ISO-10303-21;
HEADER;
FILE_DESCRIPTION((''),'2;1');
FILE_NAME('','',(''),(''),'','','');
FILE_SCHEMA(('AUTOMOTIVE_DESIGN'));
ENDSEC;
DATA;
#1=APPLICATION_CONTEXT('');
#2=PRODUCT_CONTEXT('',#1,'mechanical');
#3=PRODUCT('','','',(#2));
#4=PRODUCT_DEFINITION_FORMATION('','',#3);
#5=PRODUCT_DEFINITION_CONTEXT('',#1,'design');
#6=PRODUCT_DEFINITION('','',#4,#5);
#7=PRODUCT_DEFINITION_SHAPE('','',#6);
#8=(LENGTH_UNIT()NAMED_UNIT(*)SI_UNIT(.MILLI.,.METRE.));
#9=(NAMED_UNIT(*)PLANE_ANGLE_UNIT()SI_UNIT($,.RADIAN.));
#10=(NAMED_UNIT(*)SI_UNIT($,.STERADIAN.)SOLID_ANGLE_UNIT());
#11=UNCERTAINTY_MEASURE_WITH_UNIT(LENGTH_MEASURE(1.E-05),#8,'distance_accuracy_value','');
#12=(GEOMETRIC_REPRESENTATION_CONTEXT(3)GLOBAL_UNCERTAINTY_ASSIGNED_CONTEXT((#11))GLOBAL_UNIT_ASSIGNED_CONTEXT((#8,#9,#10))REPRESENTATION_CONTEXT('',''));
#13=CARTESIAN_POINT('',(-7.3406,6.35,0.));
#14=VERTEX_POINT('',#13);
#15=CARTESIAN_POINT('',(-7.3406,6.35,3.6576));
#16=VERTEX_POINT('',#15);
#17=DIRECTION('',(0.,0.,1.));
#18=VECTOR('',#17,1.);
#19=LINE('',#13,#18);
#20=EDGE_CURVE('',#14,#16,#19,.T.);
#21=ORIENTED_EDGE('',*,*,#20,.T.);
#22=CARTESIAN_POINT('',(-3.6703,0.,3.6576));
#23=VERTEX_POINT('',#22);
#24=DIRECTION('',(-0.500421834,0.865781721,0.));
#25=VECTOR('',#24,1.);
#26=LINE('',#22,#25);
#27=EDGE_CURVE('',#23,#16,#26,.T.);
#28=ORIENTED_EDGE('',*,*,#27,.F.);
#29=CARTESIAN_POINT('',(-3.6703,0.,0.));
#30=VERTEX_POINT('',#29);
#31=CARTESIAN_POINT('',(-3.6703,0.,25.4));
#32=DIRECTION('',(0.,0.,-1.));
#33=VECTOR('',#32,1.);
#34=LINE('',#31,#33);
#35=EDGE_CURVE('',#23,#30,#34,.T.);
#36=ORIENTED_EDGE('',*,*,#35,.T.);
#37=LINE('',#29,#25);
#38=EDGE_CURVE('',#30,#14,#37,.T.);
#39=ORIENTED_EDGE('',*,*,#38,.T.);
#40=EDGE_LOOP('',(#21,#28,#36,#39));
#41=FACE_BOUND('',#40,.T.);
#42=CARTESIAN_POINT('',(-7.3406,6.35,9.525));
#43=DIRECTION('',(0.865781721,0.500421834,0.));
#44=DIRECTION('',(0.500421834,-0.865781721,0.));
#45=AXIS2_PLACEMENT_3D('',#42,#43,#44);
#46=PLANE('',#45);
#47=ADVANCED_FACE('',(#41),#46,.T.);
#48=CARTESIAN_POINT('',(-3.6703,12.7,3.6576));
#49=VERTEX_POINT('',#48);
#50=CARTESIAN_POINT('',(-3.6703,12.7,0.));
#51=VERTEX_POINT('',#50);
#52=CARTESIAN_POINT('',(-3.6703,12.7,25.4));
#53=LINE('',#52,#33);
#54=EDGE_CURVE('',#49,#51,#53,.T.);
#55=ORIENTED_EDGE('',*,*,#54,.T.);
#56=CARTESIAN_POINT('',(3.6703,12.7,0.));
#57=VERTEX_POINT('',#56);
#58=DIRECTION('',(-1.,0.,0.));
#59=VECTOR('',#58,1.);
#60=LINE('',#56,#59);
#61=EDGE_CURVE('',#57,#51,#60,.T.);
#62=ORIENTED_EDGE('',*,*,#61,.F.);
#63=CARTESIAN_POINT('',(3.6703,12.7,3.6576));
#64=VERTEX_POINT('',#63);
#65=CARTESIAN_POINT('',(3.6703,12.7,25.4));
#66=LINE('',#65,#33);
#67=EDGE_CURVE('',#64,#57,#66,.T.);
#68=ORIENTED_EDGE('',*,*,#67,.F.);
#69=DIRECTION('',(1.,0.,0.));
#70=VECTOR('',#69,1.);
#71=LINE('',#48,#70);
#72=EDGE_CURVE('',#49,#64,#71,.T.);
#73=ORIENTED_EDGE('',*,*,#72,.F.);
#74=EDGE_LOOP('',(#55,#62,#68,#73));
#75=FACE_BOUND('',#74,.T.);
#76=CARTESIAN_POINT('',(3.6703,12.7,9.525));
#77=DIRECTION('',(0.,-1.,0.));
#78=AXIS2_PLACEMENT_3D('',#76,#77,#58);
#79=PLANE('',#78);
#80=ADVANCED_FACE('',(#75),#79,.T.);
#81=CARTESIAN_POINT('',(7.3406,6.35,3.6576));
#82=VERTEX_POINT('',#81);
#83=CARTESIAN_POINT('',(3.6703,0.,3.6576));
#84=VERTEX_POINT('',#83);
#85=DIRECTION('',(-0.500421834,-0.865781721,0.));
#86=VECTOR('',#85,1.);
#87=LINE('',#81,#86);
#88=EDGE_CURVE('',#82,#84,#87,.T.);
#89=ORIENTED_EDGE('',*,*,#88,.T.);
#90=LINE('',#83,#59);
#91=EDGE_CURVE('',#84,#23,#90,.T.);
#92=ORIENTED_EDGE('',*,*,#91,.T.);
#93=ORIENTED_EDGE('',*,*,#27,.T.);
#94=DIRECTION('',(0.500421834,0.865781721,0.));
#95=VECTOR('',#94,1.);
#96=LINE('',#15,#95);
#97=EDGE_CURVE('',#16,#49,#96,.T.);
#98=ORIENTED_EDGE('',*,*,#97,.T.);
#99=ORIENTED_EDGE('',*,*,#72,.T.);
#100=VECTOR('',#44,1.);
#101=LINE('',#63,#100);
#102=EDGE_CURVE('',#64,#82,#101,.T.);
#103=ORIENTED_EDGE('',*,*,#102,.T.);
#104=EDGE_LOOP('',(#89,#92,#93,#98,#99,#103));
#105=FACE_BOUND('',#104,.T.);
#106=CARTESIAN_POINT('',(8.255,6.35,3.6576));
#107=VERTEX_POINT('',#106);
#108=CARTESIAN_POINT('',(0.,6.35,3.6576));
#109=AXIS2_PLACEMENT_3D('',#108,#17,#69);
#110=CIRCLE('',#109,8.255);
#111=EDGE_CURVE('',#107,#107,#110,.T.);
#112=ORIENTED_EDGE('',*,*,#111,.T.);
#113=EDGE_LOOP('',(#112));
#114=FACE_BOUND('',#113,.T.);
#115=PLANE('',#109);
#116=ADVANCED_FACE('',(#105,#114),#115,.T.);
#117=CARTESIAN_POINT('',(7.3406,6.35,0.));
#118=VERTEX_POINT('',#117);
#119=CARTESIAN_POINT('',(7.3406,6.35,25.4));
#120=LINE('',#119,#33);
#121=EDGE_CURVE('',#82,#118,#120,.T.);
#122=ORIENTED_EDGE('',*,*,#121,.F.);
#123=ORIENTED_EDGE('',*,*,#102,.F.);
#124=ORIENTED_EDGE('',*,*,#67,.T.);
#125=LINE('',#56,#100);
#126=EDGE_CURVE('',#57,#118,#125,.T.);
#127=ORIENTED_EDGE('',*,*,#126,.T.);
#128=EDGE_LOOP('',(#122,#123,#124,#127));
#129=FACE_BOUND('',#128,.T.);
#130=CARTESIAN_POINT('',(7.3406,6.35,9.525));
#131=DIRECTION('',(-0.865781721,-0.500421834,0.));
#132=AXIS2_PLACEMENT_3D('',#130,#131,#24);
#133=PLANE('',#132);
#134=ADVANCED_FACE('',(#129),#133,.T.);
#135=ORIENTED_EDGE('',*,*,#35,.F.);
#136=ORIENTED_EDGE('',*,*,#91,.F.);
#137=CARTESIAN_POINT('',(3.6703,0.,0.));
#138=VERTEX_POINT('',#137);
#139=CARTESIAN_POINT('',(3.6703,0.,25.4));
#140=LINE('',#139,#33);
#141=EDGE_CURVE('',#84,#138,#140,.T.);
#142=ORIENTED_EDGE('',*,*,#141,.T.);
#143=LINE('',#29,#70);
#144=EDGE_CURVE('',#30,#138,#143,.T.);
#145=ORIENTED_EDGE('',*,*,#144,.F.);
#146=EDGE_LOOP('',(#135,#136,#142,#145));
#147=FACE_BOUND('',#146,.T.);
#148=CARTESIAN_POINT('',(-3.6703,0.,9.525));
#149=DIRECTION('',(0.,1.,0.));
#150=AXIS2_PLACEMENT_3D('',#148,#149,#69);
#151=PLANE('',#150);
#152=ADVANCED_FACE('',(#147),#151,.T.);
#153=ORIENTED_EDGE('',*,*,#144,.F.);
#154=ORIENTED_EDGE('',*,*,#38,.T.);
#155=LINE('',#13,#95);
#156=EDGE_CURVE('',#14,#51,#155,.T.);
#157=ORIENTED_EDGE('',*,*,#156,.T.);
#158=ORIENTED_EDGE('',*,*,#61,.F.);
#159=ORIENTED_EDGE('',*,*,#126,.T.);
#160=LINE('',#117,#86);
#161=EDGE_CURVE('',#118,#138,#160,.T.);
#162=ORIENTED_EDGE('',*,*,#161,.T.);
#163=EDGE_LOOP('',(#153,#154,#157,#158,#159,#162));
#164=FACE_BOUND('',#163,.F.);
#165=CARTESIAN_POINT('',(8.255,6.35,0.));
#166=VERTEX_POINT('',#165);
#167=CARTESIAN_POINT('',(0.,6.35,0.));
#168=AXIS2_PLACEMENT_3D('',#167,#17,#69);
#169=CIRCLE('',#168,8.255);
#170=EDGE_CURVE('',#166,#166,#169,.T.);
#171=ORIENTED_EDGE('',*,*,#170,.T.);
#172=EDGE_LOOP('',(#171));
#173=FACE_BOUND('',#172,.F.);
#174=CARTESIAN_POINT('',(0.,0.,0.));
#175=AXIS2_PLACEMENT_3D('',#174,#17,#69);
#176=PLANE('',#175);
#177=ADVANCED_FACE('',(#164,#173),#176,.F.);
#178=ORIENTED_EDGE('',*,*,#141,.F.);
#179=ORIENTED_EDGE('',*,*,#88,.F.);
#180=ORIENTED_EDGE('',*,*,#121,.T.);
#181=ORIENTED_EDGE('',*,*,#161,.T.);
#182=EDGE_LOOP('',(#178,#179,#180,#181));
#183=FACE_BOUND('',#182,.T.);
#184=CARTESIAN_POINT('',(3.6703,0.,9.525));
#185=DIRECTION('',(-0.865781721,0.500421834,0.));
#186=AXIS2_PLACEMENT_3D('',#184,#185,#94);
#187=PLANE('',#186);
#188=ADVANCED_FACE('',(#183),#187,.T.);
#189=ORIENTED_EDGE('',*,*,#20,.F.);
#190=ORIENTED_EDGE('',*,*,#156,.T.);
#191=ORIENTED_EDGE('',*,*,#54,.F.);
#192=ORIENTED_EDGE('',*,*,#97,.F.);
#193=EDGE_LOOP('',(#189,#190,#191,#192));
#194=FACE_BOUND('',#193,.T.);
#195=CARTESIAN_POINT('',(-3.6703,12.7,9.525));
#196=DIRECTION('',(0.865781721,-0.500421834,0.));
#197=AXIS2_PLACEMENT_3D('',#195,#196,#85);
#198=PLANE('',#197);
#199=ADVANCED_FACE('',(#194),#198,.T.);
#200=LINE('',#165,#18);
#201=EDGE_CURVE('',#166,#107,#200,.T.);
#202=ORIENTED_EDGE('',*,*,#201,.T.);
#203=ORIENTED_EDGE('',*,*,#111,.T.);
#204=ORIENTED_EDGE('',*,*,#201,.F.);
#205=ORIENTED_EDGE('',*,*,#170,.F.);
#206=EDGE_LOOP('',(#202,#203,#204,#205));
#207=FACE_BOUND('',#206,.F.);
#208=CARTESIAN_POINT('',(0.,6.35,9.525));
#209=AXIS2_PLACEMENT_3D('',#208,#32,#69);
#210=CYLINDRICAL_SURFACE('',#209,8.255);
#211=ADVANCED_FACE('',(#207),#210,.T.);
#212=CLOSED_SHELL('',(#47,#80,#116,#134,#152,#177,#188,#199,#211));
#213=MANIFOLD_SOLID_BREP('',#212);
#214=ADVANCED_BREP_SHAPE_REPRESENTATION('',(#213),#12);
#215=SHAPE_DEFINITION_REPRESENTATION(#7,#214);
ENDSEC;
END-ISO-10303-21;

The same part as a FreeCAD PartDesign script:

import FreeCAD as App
import Part
import Sketcher

V = App.Vector
Q = App.Units.Quantity


def add_polygon(sketch, points):
    """Adds a closed chain of lines whose ends are joined by coincident constraints."""
    first, n = sketch.GeometryCount, len(points)
    for a, b in zip(points, points[1:] + points[:1]):
        sketch.addGeometry(Part.LineSegment(App.Vector(*a, 0), App.Vector(*b, 0)), False)
    for i in range(n):
        sketch.addConstraint(Sketcher.Constraint("Coincident", first + i, 2, first + (i + 1) % n, 1))

doc = App.newDocument("Part")
body = doc.addObject("PartDesign::Body", "Body")

# Sketch on XY plane
sketch1 = body.newObject("Sketcher::SketchObject", "Sketch")
sketch1.AttachmentSupport = (doc.getObject("XY_Plane"), [""])
sketch1.MapMode = "FlatFace"
sketch1.addGeometry(Part.Circle(V(0, 6, 0), V(0, 0, 1), 8), False)  # 0
add_polygon(sketch1, [(-4, 13), (4, 13), (7, 6), (4, 0), (-4, 0), (-7, 6)])  # lines 1-6
sketch1.addConstraint([
    Sketcher.Constraint("Horizontal", 1),
    Sketcher.Constraint("Horizontal", 4),
    Sketcher.Constraint("Symmetric", 3, 2, 4, 2, -1, 1),
    Sketcher.Constraint("Symmetric", 2, 2, 5, 2, -2),
    Sketcher.Constraint("PointOnObject", 0, 3, -2),
    Sketcher.Constraint("Parallel", 2, 5),
    Sketcher.Constraint("Parallel", 3, 6),
    Sketcher.Constraint("Horizontal", 0, 3, 2, 2),
    Sketcher.Constraint("Vertical", 1, 2, 3, 2),
    Sketcher.Constraint("Diameter", 0, Q("0.65 in")),
    Sketcher.Constraint("DistanceY", -1, 1, 0, 3, Q("0.25 in")),
    Sketcher.Constraint("DistanceX", 1, 1, 1, 2, Q("0.289 in")),
    Sketcher.Constraint("DistanceX", -1, 1, 2, 2, Q("0.289 in")),
])
pad1 = body.newObject("PartDesign::Pad", "Pad")
pad1.Profile = sketch1
pad1.Length = Q("0.245 in")

# Sketch on XY plane
sketch2 = body.newObject("Sketcher::SketchObject", "Sketch001")
sketch2.AttachmentSupport = (doc.getObject("XY_Plane"), [""])
sketch2.MapMode = "FlatFace"
sketch2.AttachmentOffset = App.Placement(V(0, 0, 0.245 * 25.4), App.Rotation())
sketch2.addGeometry(Part.Circle(V(0, 6, 0), V(0, 0, 1), 8), False)  # 0
add_polygon(sketch2, [(4, 0), (-4, 0), (-7, 6), (-4, 13), (4, 13), (7, 6)])  # lines 1-6
sketch2.addConstraint([
    Sketcher.Constraint("Horizontal", 1),
    Sketcher.Constraint("Horizontal", 4),
    Sketcher.Constraint("Symmetric", 1, 2, 6, 2, -1, 1),
    Sketcher.Constraint("Symmetric", 2, 2, 5, 2, -2),
    Sketcher.Constraint("PointOnObject", 0, 3, -2),
    Sketcher.Constraint("Parallel", 2, 5),
    Sketcher.Constraint("Parallel", 3, 6),
    Sketcher.Constraint("Horizontal", 0, 3, 2, 2),
    Sketcher.Constraint("Vertical", 1, 2, 3, 2),
    Sketcher.Constraint("Diameter", 0, Q("0.65 in")),
    Sketcher.Constraint("DistanceY", -1, 1, 3, 2, Q("0.5 in")),
    Sketcher.Constraint("DistanceX", 1, 2, 1, 1, Q("0.289 in")),
    Sketcher.Constraint("DistanceX", 2, 2, -1, 1, Q("0.289 in")),
])
pad2 = body.newObject("PartDesign::Pad", "Pad001")
pad2.Profile = sketch2
pad2.Length = Q("0.13 in")

# Sketch on XY plane
sketch3 = body.newObject("Sketcher::SketchObject", "Sketch002")
sketch3.AttachmentSupport = (doc.getObject("XY_Plane"), [""])
sketch3.MapMode = "FlatFace"
sketch3.AttachmentOffset = App.Placement(V(0, 0, 0.375 * 25.4), App.Rotation())
sketch3.addGeometry(Part.Circle(V(0, 6, 0), V(0, 0, 1), 8), False)  # 0
add_polygon(sketch3, [(-4, 0), (-7, 6), (-4, 13), (4, 13), (7, 6), (4, 0)])  # lines 1-6
sketch3.addConstraint([
    Sketcher.Constraint("Horizontal", 3),
    Sketcher.Constraint("Horizontal", 6),
    Sketcher.Constraint("Symmetric", 5, 2, 6, 2, -1, 1),
    Sketcher.Constraint("Symmetric", 1, 2, 4, 2, -2),
    Sketcher.Constraint("PointOnObject", 0, 3, -2),
    Sketcher.Constraint("Parallel", 1, 4),
    Sketcher.Constraint("Parallel", 2, 5),
    Sketcher.Constraint("Horizontal", 0, 3, 1, 2),
    Sketcher.Constraint("Vertical", 3, 2, 5, 2),
    Sketcher.Constraint("Diameter", 0, Q("0.65 in")),
    Sketcher.Constraint("DistanceY", -1, 1, 2, 2, Q("0.5 in")),
    Sketcher.Constraint("DistanceX", 3, 1, 3, 2, Q("0.289 in")),
    Sketcher.Constraint("DistanceX", 1, 2, -1, 1, Q("0.289 in")),
])
pad3 = body.newObject("PartDesign::Pad", "Pad002")
pad3.Profile = sketch3
pad3.Length = Q("0.259 in")

# Sketch on XY plane
sketch4 = body.newObject("Sketcher::SketchObject", "Sketch003")
sketch4.AttachmentSupport = (doc.getObject("XY_Plane"), [""])
sketch4.MapMode = "FlatFace"
sketch4.AttachmentOffset = App.Placement(V(0, 0, 0.634 * 25.4), App.Rotation())
add_polygon(sketch4, [(15, 22), (-16, 22), (-16, -7), (15, -7)])  # lines 0-3
sketch4.addConstraint([
    Sketcher.Constraint("Horizontal", 0),
    Sketcher.Constraint("Vertical", 1),
    Sketcher.Constraint("Horizontal", 2),
    Sketcher.Constraint("Vertical", 3),
    Sketcher.Constraint("DistanceY", 1, 2, 1, 1, Q("1.1281 in")),
    Sketcher.Constraint("DistanceX", 0, 2, 0, 1, 31.472),
    Sketcher.Constraint("DistanceX", -1, 1, 2, 2, Q("0.5955 in")),
    Sketcher.Constraint("DistanceY", -1, 1, 0, 2, 22.1245),
])
pocket1 = body.newObject("PartDesign::Pocket", "Pocket")
pocket1.Profile = sketch4
pocket1.Length = Q("0.259 in")

# Sketch on XY plane
sketch5 = body.newObject("Sketcher::SketchObject", "Sketch004")
sketch5.AttachmentSupport = (doc.getObject("XY_Plane"), [""])
sketch5.MapMode = "FlatFace"
sketch5.AttachmentOffset = App.Placement(V(0, 0, 0.375 * 25.4), App.Rotation())
sketch5.addGeometry(Part.Circle(V(0, 6, 0), V(0, 0, 1), 8), False)  # 0
add_polygon(sketch5, [(-4, 0), (-7, 6), (-4, 13), (4, 13), (7, 6), (4, 0)])  # lines 1-6
sketch5.addConstraint([
    Sketcher.Constraint("Horizontal", 3),
    Sketcher.Constraint("Horizontal", 6),
    Sketcher.Constraint("Symmetric", 5, 2, 6, 2, -1, 1),
    Sketcher.Constraint("Symmetric", 1, 2, 4, 2, -2),
    Sketcher.Constraint("PointOnObject", 0, 3, -2),
    Sketcher.Constraint("Parallel", 1, 4),
    Sketcher.Constraint("Parallel", 2, 5),
    Sketcher.Constraint("Horizontal", 0, 3, 1, 2),
    Sketcher.Constraint("Vertical", 3, 2, 5, 2),
    Sketcher.Constraint("Diameter", 0, Q("0.65 in")),
    Sketcher.Constraint("DistanceY", -1, 1, 2, 2, Q("0.5 in")),
    Sketcher.Constraint("DistanceX", 3, 1, 3, 2, Q("0.289 in")),
    Sketcher.Constraint("DistanceX", 1, 2, -1, 1, Q("0.289 in")),
])
pad4 = body.newObject("PartDesign::Pad", "Pad003")
pad4.Profile = sketch5
pad4.Length = Q("0.625 in")

# Sketch on XY plane
sketch6 = body.newObject("Sketcher::SketchObject", "Sketch005")
sketch6.AttachmentSupport = (doc.getObject("XY_Plane"), [""])
sketch6.MapMode = "FlatFace"
sketch6.AttachmentOffset = App.Placement(V(0, 0, 1 * 25.4), App.Rotation())
sketch6.addGeometry(Part.Circle(V(0, 6, 0), V(0, 0, 1), 8), False)  # 0
add_polygon(sketch6, [(-4, 0), (-7, 6), (-4, 13), (4, 13), (7, 6), (4, 0)])  # lines 1-6
sketch6.addConstraint([
    Sketcher.Constraint("Horizontal", 3),
    Sketcher.Constraint("Horizontal", 6),
    Sketcher.Constraint("Symmetric", 5, 2, 6, 2, -1, 1),
    Sketcher.Constraint("Symmetric", 1, 2, 4, 2, -2),
    Sketcher.Constraint("PointOnObject", 0, 3, -2),
    Sketcher.Constraint("Parallel", 1, 4),
    Sketcher.Constraint("Parallel", 2, 5),
    Sketcher.Constraint("Horizontal", 0, 3, 1, 2),
    Sketcher.Constraint("Vertical", 3, 2, 5, 2),
    Sketcher.Constraint("Diameter", 0, Q("0.65 in")),
    Sketcher.Constraint("DistanceY", -1, 1, 2, 2, Q("0.5 in")),
    Sketcher.Constraint("DistanceX", 3, 1, 3, 2, Q("0.289 in")),
    Sketcher.Constraint("DistanceX", 1, 2, -1, 1, Q("0.289 in")),
])
pocket2 = body.newObject("PartDesign::Pocket", "Pocket001")
pocket2.Profile = sketch6
pocket2.Length = Q("0.856 in")

doc.recompute()
